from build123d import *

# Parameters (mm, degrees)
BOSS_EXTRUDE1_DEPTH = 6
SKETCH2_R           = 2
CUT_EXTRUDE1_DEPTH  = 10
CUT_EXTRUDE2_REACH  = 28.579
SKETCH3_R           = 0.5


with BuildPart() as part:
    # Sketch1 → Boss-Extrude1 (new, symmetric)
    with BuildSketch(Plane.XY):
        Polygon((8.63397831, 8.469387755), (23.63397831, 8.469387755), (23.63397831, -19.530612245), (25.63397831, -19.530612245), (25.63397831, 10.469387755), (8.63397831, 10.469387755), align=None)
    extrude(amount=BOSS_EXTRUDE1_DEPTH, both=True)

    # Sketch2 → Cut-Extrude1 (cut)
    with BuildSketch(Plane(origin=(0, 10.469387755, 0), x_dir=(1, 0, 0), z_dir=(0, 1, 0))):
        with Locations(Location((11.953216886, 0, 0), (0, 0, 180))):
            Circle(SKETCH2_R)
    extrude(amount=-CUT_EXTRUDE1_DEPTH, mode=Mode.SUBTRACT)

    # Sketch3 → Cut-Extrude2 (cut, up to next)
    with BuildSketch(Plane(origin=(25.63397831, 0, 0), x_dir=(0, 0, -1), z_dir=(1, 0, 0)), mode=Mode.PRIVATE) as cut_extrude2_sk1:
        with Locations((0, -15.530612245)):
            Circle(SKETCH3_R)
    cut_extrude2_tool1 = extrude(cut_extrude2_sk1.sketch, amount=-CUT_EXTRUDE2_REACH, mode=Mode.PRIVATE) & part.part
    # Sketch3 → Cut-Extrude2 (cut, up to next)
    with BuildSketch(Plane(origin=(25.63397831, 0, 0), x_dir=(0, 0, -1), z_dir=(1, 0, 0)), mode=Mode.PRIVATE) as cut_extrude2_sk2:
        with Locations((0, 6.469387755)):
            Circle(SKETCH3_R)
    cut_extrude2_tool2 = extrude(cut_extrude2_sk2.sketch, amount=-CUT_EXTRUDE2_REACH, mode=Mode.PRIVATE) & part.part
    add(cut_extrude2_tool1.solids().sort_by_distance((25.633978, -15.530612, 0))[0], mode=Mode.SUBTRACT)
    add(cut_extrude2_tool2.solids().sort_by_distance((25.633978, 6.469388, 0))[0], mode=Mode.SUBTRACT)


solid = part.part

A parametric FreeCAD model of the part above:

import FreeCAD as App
import Part
import Sketcher

V = App.Vector
Q = App.Units.Quantity


def add_polygon(sketch, points):
    """Adds a closed chain of lines whose ends are joined by coincident constraints."""
    first, n = sketch.GeometryCount, len(points)
    for a, b in zip(points, points[1:] + points[:1]):
        sketch.addGeometry(Part.LineSegment(App.Vector(*a, 0), App.Vector(*b, 0)), False)
    for i in range(n):
        sketch.addConstraint(Sketcher.Constraint("Coincident", first + i, 2, first + (i + 1) % n, 1))

doc = App.newDocument("Part")
body = doc.addObject("PartDesign::Body", "Body")

sketch1 = body.newObject("Sketcher::SketchObject", "Sketch")
sketch1.AttachmentSupport = (doc.getObject("XY_Plane"), [""])
sketch1.MapMode = "FlatFace"
add_polygon(sketch1, [(8.633978, 8.469388), (23.633978, 8.469388), (23.633978, -19.530612), (25.633978, -19.530612), (25.633978, 10.469388), (8.633978, 10.469388)])
sketch1.addConstraint([
    Sketcher.Constraint("Horizontal", 0),
    Sketcher.Constraint("Vertical", 1),
    Sketcher.Constraint("Horizontal", 2),
    Sketcher.Constraint("Vertical", 3),
    Sketcher.Constraint("Horizontal", 4),
    Sketcher.Constraint("Vertical", 5),
    Sketcher.Constraint("Equal", 2, 5),
    Sketcher.Constraint("DistanceX", 0, 1, 0, 2, Q("15 mm")),
    Sketcher.Constraint("DistanceX", 2, 1, 2, 2, Q("2 mm")),
    Sketcher.Constraint("DistanceY", 1, 2, 1, 1, Q("28 mm")),
    Sketcher.Constraint("DistanceX", -1, 1, 0, 2, Q("23.633978 mm")),
    Sketcher.Constraint("DistanceY", -1, 1, 0, 2, Q("8.469388 mm")),
])
pad1 = body.newObject("PartDesign::Pad", "Pad")
pad1.Profile = sketch1
pad1.Length = 12
pad1.Midplane = True

sketch2 = body.newObject("Sketcher::SketchObject", "Sketch001")
sketch2.AttachmentSupport = (doc.getObject("XZ_Plane"), [""])
sketch2.MapMode = "FlatFace"
sketch2.AttachmentOffset = App.Placement(V(0, 0, -10.469388), App.Rotation())
sketch2.addGeometry(Part.Circle(V(11.953217, 0, 0), V(0, 0, 1), 2), False)
sketch2.addConstraint([
    Sketcher.Constraint("PointOnObject", 0, 3, -1),
    Sketcher.Constraint("Diameter", 0, Q("4 mm")),
    Sketcher.Constraint("DistanceX", -1, 1, 0, 3, Q("11.953217 mm")),
])
pocket1 = body.newObject("PartDesign::Pocket", "Pocket")
pocket1.Profile = sketch2
pocket1.Length = 10
pocket1.Reversed = True

sketch3 = body.newObject("Sketcher::SketchObject", "Sketch002")
sketch3.AttachmentSupport = (doc.getObject("YZ_Plane"), [""])
sketch3.MapMode = "FlatFace"
sketch3.AttachmentOffset = App.Placement(V(0, 0, 25.633978), App.Rotation())
sketch3.addGeometry(Part.Circle(V(-15.530612, 0, 0), V(0, 0, 1), 0.5), False)
sketch3.addConstraint([
    Sketcher.Constraint("PointOnObject", 0, 3, -1),
    Sketcher.Constraint("Diameter", 0, Q("1 mm")),
    Sketcher.Constraint("DistanceX", 0, 3, -1, 1, Q("15.530612 mm")),
])
pocket2 = body.newObject("PartDesign::Pocket", "Pocket001")
pocket2.Profile = sketch3
pocket2.Type = "UpToFirst"

sketch4 = body.newObject("Sketcher::SketchObject", "Sketch003")
sketch4.AttachmentSupport = (doc.getObject("YZ_Plane"), [""])
sketch4.MapMode = "FlatFace"
sketch4.AttachmentOffset = App.Placement(V(0, 0, 25.633978), App.Rotation())
sketch4.addGeometry(Part.Circle(V(6.469388, 0, 0), V(0, 0, 1), 0.5), False)
sketch4.addConstraint([
    Sketcher.Constraint("PointOnObject", 0, 3, -1),
    Sketcher.Constraint("Diameter", 0, Q("1 mm")),
    Sketcher.Constraint("DistanceX", -1, 1, 0, 3, Q("6.469388 mm")),
])
pocket3 = body.newObject("PartDesign::Pocket", "Pocket002")
pocket3.Profile = sketch4
pocket3.Type = "UpToFirst"

doc.recompute()
